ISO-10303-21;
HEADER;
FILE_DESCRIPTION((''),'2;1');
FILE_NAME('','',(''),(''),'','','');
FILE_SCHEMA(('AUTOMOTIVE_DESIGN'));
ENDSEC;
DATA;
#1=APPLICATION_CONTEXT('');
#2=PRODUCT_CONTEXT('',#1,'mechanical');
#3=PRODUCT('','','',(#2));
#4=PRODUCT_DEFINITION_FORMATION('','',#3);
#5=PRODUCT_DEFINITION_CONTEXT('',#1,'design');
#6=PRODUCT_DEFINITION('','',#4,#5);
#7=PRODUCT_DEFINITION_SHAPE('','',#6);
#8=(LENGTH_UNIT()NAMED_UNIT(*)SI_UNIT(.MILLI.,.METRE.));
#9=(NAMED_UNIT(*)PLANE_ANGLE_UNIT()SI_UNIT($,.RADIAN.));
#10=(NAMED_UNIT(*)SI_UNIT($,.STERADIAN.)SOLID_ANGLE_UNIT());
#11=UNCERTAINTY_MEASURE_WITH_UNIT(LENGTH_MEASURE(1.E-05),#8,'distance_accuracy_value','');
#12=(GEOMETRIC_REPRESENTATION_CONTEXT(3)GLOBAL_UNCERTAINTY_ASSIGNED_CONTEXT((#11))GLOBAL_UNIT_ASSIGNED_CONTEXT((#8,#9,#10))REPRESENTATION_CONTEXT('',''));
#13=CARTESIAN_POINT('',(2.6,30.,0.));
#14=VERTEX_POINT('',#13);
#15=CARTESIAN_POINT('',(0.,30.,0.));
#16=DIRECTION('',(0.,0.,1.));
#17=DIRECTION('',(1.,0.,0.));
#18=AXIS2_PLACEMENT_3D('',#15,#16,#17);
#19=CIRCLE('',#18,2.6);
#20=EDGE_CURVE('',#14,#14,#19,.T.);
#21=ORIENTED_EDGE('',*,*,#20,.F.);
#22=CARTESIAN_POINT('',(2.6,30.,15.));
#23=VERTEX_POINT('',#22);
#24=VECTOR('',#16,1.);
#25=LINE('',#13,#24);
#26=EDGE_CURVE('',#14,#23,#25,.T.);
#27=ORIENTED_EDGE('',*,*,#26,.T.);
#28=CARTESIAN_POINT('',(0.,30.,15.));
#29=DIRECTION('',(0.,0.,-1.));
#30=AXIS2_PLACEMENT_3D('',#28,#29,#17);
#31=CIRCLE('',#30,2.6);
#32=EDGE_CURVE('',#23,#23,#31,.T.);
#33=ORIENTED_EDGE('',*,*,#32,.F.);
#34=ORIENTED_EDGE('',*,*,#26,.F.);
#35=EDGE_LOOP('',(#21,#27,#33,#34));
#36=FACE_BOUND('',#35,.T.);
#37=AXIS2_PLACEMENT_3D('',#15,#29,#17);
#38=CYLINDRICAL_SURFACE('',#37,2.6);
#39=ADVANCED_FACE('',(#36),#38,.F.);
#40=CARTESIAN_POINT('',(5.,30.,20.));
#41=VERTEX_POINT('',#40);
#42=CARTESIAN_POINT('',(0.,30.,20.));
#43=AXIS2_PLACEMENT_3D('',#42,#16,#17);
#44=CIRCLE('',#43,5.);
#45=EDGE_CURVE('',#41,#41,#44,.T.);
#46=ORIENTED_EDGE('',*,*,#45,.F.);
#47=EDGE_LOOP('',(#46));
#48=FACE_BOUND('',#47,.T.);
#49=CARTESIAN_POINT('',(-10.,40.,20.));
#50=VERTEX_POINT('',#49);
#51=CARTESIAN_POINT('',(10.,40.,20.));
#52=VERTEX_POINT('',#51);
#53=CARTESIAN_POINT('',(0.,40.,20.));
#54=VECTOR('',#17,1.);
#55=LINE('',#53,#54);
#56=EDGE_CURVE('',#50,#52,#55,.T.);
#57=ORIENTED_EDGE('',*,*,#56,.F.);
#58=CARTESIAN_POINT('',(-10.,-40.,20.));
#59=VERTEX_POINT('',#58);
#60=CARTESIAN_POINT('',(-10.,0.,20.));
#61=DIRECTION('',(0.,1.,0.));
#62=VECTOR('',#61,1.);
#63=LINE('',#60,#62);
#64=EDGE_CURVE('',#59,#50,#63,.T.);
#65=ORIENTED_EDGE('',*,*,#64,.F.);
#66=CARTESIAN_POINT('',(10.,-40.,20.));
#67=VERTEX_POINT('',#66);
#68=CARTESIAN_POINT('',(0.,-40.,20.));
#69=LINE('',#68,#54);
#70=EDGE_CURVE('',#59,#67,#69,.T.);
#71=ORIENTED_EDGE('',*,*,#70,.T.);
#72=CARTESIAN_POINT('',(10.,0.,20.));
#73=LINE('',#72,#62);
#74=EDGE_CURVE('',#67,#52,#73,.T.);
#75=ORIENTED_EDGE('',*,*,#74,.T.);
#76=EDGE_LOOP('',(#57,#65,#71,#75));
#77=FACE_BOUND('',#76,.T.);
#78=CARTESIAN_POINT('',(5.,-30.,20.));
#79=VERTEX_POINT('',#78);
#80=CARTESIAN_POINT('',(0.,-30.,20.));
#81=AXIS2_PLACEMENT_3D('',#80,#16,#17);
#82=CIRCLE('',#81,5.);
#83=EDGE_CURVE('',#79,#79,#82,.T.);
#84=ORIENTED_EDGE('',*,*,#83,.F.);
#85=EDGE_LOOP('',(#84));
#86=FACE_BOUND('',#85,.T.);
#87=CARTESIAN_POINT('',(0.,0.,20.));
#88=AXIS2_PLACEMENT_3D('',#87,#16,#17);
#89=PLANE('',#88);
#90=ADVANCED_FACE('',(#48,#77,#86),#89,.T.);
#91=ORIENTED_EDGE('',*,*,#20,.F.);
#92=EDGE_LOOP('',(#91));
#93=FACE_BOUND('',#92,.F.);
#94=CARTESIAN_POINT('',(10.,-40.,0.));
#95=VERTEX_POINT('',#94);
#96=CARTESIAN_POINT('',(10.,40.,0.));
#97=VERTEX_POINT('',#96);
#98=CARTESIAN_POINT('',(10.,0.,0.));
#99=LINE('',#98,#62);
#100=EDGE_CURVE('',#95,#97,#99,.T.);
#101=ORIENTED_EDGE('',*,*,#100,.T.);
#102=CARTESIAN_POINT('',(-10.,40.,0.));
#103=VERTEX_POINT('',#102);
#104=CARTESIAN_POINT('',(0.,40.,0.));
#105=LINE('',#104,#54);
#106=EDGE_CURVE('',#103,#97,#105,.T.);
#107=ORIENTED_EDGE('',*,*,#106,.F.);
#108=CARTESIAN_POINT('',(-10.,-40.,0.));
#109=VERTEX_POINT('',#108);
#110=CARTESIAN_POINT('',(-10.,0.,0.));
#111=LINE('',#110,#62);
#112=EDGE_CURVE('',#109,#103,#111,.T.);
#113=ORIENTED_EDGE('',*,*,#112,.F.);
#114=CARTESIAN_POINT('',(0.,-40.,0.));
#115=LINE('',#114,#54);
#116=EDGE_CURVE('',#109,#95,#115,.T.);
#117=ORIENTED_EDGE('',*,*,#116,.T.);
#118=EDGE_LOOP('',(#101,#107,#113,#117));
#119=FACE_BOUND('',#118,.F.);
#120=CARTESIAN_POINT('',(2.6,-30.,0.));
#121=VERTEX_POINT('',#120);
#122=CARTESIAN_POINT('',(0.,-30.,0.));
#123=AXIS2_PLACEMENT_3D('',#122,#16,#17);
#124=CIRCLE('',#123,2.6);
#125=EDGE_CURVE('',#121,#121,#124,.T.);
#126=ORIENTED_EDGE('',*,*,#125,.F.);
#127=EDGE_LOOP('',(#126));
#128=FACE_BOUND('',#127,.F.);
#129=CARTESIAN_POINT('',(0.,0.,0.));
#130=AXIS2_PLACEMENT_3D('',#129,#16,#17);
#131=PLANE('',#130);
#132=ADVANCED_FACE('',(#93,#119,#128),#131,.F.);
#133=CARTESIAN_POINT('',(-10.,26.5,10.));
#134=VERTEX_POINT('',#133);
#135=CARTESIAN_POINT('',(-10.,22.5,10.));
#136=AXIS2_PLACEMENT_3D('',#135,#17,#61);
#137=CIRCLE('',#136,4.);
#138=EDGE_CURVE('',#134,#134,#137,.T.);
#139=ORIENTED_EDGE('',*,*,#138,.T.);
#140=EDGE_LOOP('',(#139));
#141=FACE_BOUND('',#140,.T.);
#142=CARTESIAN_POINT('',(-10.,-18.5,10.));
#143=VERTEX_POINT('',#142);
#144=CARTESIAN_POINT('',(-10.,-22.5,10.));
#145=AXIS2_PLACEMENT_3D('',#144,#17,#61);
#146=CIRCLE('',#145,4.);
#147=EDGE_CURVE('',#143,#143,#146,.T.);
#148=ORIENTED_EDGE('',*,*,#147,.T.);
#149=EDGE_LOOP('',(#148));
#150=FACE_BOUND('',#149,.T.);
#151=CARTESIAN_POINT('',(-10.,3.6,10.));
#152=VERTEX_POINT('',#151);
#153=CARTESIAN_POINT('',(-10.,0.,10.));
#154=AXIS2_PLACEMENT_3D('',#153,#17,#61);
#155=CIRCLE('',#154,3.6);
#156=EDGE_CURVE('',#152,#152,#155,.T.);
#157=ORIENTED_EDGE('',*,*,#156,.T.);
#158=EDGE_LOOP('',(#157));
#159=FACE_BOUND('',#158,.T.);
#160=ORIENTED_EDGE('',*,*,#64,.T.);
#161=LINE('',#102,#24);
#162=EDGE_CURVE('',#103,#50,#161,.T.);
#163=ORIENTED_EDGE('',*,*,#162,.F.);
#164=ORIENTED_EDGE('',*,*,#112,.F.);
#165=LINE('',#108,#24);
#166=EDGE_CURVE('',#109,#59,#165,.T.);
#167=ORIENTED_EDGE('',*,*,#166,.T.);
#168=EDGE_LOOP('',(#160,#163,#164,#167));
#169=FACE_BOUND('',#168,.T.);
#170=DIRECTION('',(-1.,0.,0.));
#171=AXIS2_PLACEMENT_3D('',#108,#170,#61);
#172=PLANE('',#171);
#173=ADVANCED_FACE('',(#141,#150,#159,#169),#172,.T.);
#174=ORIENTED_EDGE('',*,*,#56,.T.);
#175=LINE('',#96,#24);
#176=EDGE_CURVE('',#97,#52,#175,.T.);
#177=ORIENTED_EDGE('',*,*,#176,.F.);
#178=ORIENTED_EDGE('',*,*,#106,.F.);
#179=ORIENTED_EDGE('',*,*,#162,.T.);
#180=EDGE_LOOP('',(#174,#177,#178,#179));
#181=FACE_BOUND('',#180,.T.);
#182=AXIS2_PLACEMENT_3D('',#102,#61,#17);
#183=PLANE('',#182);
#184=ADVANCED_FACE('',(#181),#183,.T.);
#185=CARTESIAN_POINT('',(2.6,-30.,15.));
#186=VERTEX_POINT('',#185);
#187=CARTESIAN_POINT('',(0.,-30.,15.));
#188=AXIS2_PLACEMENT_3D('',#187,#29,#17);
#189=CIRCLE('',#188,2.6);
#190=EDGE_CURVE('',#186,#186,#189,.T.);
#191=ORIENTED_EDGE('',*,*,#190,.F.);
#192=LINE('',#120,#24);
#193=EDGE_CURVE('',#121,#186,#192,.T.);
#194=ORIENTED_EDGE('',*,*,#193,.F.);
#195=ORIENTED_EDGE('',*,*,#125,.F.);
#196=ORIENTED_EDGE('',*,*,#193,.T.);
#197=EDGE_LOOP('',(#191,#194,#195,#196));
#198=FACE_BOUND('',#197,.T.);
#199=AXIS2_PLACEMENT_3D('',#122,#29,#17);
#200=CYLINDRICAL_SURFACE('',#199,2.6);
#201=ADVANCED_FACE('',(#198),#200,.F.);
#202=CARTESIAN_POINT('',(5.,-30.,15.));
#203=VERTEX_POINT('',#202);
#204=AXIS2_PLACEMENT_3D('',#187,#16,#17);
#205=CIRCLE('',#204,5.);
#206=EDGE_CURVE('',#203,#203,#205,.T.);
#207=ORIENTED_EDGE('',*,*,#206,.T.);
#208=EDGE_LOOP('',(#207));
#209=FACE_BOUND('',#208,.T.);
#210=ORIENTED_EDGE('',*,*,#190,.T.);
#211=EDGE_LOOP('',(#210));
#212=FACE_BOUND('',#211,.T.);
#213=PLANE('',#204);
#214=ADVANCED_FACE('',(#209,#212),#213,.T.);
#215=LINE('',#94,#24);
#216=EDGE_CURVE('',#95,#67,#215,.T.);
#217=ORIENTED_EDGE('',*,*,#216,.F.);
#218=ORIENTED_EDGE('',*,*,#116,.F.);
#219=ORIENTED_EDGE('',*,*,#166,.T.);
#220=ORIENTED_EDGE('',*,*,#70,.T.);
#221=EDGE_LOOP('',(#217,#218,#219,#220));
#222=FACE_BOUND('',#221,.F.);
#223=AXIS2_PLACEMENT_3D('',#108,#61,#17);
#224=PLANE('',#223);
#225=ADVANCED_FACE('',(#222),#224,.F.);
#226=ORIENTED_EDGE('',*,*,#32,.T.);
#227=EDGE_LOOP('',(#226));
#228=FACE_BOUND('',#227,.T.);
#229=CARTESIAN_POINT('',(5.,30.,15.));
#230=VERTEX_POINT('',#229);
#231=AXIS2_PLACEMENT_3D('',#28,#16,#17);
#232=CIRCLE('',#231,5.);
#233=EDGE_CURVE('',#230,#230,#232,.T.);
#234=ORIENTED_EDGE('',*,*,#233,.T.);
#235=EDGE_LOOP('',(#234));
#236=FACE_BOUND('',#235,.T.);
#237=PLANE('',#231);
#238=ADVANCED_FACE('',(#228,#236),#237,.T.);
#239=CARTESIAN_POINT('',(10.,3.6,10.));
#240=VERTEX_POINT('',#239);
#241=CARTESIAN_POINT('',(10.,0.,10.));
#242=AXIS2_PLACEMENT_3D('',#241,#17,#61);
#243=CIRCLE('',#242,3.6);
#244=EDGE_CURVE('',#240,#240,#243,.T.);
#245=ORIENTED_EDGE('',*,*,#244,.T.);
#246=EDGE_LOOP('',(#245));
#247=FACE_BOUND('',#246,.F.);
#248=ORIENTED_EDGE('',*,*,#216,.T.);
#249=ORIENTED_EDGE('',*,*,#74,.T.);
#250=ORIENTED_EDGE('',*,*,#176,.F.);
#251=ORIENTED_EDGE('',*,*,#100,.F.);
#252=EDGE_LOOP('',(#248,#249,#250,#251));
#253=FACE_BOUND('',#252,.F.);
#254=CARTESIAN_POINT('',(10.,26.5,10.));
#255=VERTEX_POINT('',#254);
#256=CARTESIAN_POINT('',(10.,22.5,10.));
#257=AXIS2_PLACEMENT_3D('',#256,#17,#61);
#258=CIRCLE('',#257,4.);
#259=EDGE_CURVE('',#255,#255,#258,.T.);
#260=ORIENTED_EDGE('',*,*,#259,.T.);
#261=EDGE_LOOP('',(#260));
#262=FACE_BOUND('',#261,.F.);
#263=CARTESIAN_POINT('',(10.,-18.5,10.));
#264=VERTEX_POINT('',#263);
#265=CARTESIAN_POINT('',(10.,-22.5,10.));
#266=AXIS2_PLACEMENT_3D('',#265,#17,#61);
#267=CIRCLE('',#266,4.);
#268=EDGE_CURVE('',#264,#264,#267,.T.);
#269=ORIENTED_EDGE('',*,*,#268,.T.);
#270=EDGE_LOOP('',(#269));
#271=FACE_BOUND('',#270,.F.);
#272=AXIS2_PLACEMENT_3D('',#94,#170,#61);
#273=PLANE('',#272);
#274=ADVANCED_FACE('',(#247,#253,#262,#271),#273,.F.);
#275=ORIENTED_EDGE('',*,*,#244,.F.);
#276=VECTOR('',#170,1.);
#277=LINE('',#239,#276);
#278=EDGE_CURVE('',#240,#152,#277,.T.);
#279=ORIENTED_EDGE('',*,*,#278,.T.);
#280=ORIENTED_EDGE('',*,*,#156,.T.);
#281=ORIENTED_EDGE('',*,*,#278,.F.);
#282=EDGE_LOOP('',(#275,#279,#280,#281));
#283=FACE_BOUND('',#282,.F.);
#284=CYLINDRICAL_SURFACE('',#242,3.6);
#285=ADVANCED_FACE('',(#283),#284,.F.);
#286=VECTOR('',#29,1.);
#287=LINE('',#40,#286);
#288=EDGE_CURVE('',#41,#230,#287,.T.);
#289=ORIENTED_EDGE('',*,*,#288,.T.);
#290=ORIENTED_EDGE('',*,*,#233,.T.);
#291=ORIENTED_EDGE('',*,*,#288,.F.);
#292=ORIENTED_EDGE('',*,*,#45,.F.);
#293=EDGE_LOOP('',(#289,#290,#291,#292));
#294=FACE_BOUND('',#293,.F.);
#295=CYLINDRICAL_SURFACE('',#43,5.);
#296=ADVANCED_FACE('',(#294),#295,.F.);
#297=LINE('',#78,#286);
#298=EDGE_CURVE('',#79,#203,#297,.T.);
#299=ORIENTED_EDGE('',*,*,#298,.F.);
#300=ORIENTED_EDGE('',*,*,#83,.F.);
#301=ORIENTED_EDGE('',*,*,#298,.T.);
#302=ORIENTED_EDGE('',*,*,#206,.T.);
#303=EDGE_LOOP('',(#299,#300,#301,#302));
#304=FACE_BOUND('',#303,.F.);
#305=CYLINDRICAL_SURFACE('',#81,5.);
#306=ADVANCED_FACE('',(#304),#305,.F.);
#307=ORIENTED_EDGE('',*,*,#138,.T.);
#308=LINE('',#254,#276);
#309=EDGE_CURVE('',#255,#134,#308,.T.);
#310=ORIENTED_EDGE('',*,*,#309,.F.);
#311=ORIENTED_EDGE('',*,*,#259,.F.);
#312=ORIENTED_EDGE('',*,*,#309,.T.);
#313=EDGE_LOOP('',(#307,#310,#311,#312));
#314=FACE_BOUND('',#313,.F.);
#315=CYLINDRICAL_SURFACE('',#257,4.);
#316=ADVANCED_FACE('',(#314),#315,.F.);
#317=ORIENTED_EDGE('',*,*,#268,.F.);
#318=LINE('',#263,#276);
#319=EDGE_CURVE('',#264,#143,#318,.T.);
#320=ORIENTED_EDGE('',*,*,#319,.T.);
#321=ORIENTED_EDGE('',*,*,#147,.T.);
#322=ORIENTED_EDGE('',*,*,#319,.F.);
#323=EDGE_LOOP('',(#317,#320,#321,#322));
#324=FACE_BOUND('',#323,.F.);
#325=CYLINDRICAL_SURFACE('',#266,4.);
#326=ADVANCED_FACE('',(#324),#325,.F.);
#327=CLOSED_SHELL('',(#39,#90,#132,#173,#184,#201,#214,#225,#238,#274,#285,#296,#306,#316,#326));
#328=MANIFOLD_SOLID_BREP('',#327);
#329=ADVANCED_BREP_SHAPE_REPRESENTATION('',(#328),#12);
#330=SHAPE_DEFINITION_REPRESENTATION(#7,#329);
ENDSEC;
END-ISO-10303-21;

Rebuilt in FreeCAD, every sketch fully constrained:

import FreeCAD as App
import Part
import Sketcher
from FreeCAD import Vector

doc = App.newDocument("Part")
body = doc.addObject("PartDesign::Body", "Body")

# Sketch on XY plane
sketch1 = body.newObject("Sketcher::SketchObject", "Sketch")
sketch1.AttachmentSupport = (doc.getObject("XY_Plane"), [""])
sketch1.MapMode = "FlatFace"
sketch1.addGeometry([
    Part.LineSegment(Vector(-10, 40, 0), Vector(-10, -40, 0)),  # 0
    Part.LineSegment(Vector(-10, -40, 0), Vector(10, -40, 0)),  # 1
    Part.LineSegment(Vector(10, -40, 0), Vector(10, 40, 0)),  # 2
    Part.LineSegment(Vector(10, 40, 0), Vector(-10, 40, 0)),  # 3
    Part.Circle(Vector(0, -30, 0), Vector(0, 0, 1), 2.6),  # 4
    Part.Circle(Vector(0, 30, 0), Vector(0, 0, 1), 2.6),  # 5
], False)
sketch1.addConstraint([
    Sketcher.Constraint("Coincident", 0, 2, 1, 1),
    Sketcher.Constraint("Coincident", 1, 2, 2, 1),
    Sketcher.Constraint("Coincident", 2, 2, 3, 1),
    Sketcher.Constraint("Coincident", 3, 2, 0, 1),
    Sketcher.Constraint("Vertical", 0),
    Sketcher.Constraint("Horizontal", 1),
    Sketcher.Constraint("Vertical", 2),
    Sketcher.Constraint("Horizontal", 3),
    Sketcher.Constraint("Equal", 4, 5),
    Sketcher.Constraint("Symmetric", 4, 3, 5, 3, -1, 1),
    Sketcher.Constraint("Symmetric", 0, 2, 2, 2, -1, 1),
    Sketcher.Constraint("PointOnObject", 4, 3, -2),
    Sketcher.Constraint("Diameter", 4, 5.2),
    Sketcher.Constraint("DistanceX", 1, 1, 1, 2, 20.0),
    Sketcher.Constraint("DistanceY", 0, 2, 0, 1, 80.0),
    Sketcher.Constraint("DistanceY", 4, 3, -1, 1, 30.0),
])
pad1 = body.newObject("PartDesign::Pad", "Pad")
pad1.Profile = sketch1
pad1.Length = 20

# Sketch on XY plane
sketch2 = body.newObject("Sketcher::SketchObject", "Sketch001")
sketch2.AttachmentSupport = (doc.getObject("XY_Plane"), [""])
sketch2.MapMode = "FlatFace"
sketch2.AttachmentOffset = App.Placement(Vector(0, 0, 20), App.Rotation())
sketch2.addGeometry([
    Part.Circle(Vector(0, 30, 0), Vector(0, 0, 1), 5),
    Part.Circle(Vector(0, -30, 0), Vector(0, 0, 1), 5),
], False)
sketch2.addConstraint([
    Sketcher.Constraint("Equal", 0, 1),
    Sketcher.Constraint("Symmetric", 0, 3, 1, 3, -1, 1),
    Sketcher.Constraint("PointOnObject", 0, 3, -2),
    Sketcher.Constraint("Diameter", 0, 10.0),
    Sketcher.Constraint("DistanceY", -1, 1, 0, 3, 30.0),
])
pocket1 = body.newObject("PartDesign::Pocket", "Pocket")
pocket1.Profile = sketch2
pocket1.Length = 5

# Sketch on YZ plane
sketch3 = body.newObject("Sketcher::SketchObject", "Sketch002")
sketch3.AttachmentSupport = (doc.getObject("YZ_Plane"), [""])
sketch3.MapMode = "FlatFace"
sketch3.AttachmentOffset = App.Placement(Vector(0, 0, 10), App.Rotation())
sketch3.addGeometry([
    Part.Circle(Vector(-22.5, 10, 0), Vector(0, 0, 1), 4),
    Part.Circle(Vector(22.5, 10, 0), Vector(0, 0, 1), 4),
    Part.Circle(Vector(0, 10, 0), Vector(0, 0, 1), 3.6),
], False)
sketch3.addConstraint([
    Sketcher.Constraint("Equal", 0, 1),
    Sketcher.Constraint("Symmetric", 0, 3, 1, 3, -2),
    Sketcher.Constraint("PointOnObject", 2, 3, -2),
    Sketcher.Constraint("Horizontal", 1, 3, 2, 3),
    Sketcher.Constraint("Diameter", 0, 8.0),
    Sketcher.Constraint("Diameter", 2, 7.2),
    Sketcher.Constraint("DistanceY", -1, 1, 0, 3, 10.0),
    Sketcher.Constraint("DistanceX", 0, 3, 1, 3, 45.0),
])
pocket2 = body.newObject("PartDesign::Pocket", "Pocket001")
pocket2.Profile = sketch3
pocket2.Length = 25

doc.recompute()
